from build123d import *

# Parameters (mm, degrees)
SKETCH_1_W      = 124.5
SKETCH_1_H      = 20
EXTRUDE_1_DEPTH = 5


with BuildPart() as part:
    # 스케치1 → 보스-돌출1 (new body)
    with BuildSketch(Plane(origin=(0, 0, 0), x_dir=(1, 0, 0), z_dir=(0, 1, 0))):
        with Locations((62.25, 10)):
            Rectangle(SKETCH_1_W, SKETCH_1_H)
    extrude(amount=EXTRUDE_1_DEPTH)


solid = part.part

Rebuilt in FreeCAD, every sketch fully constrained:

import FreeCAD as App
import Part
import Sketcher
from FreeCAD import Vector
Q = App.Units.Quantity


def add_polygon(sketch, points):
    """Adds a closed chain of lines whose ends are joined by coincident constraints."""
    first, n = sketch.GeometryCount, len(points)
    for a, b in zip(points, points[1:] + points[:1]):
        sketch.addGeometry(Part.LineSegment(App.Vector(*a, 0), App.Vector(*b, 0)), False)
    for i in range(n):
        sketch.addConstraint(Sketcher.Constraint("Coincident", first + i, 2, first + (i + 1) % n, 1))

doc = App.newDocument("Part")
body = doc.addObject("PartDesign::Body", "Body")

sketch1 = body.newObject("Sketcher::SketchObject", "Sketch")
sketch1.AttachmentSupport = (doc.getObject("XZ_Plane"), [""])
sketch1.MapMode = "FlatFace"
add_polygon(sketch1, [(0, -20), (0, 0), (124, 0), (124, -20)])
sketch1.addConstraint(Sketcher.Constraint("Vertical", 0))
sketch1.addConstraint(Sketcher.Constraint("Horizontal", 1))
sketch1.addConstraint(Sketcher.Constraint("Vertical", 2))
sketch1.addConstraint(Sketcher.Constraint("Horizontal", 3))
sketch1.addConstraint(Sketcher.Constraint("Coincident", 0, 2, -1, 1))
sketch1.addConstraint(Sketcher.Constraint("DistanceY", 0, 1, 0, 2, Q("20 mm")))
sketch1.addConstraint(Sketcher.Constraint("DistanceX", 1, 1, 1, 2, Q("124.5 mm")))
pad1 = body.newObject("PartDesign::Pad", "Pad")
pad1.Profile = sketch1
pad1.Length = 5
pad1.Reversed = True

doc.recompute()
